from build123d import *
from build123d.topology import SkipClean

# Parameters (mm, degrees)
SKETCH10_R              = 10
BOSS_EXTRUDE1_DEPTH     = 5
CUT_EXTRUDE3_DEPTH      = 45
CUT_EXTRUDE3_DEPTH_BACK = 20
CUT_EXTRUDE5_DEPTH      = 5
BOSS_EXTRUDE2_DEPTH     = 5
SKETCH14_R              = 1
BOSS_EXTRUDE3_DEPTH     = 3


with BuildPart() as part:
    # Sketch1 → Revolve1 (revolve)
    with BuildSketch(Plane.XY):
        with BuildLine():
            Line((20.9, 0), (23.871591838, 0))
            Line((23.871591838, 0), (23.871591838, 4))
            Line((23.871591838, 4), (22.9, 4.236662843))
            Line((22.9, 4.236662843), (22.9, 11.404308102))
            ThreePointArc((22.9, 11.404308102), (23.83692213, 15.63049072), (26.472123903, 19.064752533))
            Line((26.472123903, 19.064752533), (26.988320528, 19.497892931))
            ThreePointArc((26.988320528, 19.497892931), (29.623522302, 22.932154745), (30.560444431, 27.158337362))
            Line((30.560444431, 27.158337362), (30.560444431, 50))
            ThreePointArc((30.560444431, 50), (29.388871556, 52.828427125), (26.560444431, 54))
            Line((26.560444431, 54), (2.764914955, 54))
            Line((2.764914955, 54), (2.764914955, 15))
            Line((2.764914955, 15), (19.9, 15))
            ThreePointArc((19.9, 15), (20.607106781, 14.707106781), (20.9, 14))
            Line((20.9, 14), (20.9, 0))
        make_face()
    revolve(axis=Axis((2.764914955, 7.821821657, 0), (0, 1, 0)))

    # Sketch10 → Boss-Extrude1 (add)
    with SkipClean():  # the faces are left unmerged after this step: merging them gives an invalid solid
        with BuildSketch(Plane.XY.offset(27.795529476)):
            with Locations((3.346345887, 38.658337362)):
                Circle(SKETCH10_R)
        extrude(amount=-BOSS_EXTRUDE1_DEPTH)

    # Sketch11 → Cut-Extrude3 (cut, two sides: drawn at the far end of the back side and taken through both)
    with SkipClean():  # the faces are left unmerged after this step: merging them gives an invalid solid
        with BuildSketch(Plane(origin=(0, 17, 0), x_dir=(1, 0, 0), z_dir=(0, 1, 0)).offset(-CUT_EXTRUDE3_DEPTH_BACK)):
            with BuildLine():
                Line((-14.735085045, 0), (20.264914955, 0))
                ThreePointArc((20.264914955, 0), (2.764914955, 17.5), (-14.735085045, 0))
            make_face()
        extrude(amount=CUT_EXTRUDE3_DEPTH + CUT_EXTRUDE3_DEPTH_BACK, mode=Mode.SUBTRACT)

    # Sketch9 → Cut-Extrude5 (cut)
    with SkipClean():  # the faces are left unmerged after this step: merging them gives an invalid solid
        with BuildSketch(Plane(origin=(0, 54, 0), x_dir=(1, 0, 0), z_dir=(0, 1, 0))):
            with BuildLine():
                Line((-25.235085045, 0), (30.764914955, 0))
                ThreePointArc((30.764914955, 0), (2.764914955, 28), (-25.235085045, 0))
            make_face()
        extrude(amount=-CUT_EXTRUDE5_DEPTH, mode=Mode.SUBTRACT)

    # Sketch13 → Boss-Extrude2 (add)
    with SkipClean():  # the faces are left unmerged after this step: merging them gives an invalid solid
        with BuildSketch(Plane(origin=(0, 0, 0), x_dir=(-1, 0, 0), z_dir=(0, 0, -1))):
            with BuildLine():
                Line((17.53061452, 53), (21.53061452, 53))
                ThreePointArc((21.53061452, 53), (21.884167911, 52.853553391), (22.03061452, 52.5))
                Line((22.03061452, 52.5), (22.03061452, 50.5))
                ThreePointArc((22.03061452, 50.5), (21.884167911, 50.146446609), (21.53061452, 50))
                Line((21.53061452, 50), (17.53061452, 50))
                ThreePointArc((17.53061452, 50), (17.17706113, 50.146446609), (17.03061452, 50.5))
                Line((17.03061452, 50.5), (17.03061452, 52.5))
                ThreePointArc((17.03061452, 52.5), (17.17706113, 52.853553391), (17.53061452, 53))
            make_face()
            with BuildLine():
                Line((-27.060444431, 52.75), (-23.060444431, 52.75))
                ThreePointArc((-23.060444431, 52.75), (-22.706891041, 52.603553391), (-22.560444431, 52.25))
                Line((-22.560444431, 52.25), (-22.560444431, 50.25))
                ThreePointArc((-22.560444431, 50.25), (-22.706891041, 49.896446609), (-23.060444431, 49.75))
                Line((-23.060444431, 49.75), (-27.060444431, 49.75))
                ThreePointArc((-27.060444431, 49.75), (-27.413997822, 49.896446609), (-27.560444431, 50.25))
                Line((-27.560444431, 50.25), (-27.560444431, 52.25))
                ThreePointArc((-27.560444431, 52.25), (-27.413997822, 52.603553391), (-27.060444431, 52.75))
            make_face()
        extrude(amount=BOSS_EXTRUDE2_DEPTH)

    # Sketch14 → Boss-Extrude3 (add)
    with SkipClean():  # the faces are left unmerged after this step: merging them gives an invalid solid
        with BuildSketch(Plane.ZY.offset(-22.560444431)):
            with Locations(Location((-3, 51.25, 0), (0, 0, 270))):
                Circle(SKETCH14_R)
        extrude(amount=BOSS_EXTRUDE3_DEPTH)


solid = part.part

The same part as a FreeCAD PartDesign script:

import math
import FreeCAD as App
import Part
import Sketcher
Q = App.Units.Quantity

doc = App.newDocument("Part")
params = doc.addObject("Spreadsheet::Sheet", "Params")
for row, (alias, value) in enumerate([
    ("sketch1_radius", "10 mm"),
    ("sketch1_radius2", "4 mm"),
    ("sketch1_radius3", "1 mm"),
    ("sketch1_height", "4 mm"),
    ("sketch1_height2", "39 mm"),
    ("revolution_angle", "360 deg"),
    ("sketch2_diameter", "20 mm"),
    ("pad1_length", "5 mm"),
    ("sketch3_radius", "17.5 mm"),
    ("sketch4_radius", "28 mm"),
    ("pocket2_length", "5 mm"),
    ("sketch5_radius", "0.5 mm"),
    ("sketch5_width", "4 mm"),
    ("sketch5_height", "2 mm"),
    ("pad2_length", "5 mm"),
    ("sketch6_diameter", "2 mm"),
    ("pad3_length", "3 mm"),
], start=1):
    params.set(f"A{row}", alias)
    params.set(f"B{row}", "=" + value)
    params.setAlias(f"B{row}", alias)

body = doc.addObject("PartDesign::Body", "Body")

# Sketch on XY plane
sketch1 = body.newObject("Sketcher::SketchObject", "Sketch")
sketch1.AttachmentSupport = (doc.getObject("XY_Plane"), [""])
sketch1.MapMode = "FlatFace"
sketch1.addGeometry([
    Part.LineSegment(App.Vector(20.9, 0, 0), App.Vector(23.9, 0, 0)),  # 0
    Part.LineSegment(App.Vector(23.9, 0, 0), App.Vector(23.9, 4, 0)),  # 1
    Part.LineSegment(App.Vector(23.9, 4, 0), App.Vector(22.9, 4.2, 0)),  # 2
    Part.LineSegment(App.Vector(22.9, 4.2, 0), App.Vector(22.9, 11.4, 0)),  # 3
    Part.ArcOfCircle(Part.Circle(App.Vector(32.9, 11.4, 0), App.Vector(0, 0, 1), 10), math.radians(130), math.radians(180)),  # 4
    Part.LineSegment(App.Vector(26.5, 19.1, 0), App.Vector(27, 19.5, 0)),  # 5
    Part.ArcOfCircle(Part.Circle(App.Vector(20.6, 27.2, 0), App.Vector(0, 0, 1), 10), math.radians(-50), math.radians(0)),  # 6
    Part.LineSegment(App.Vector(30.6, 27.2, 0), App.Vector(30.6, 50, 0)),  # 7
    Part.ArcOfCircle(Part.Circle(App.Vector(26.6, 50, 0), App.Vector(0, 0, 1), 4), math.radians(0), math.radians(90)),  # 8
    Part.LineSegment(App.Vector(26.6, 54, 0), App.Vector(2.8, 54, 0)),  # 9
    Part.LineSegment(App.Vector(2.8, 54, 0), App.Vector(2.8, 15, 0)),  # 10
    Part.LineSegment(App.Vector(2.8, 15, 0), App.Vector(19.9, 15, 0)),  # 11
    Part.ArcOfCircle(Part.Circle(App.Vector(19.9, 14, 0), App.Vector(0, 0, 1), 1), math.radians(0), math.radians(90)),  # 12
    Part.LineSegment(App.Vector(20.9, 14, 0), App.Vector(20.9, 0, 0)),  # 13
], False)
sketch1.addGeometry(Part.LineSegment(App.Vector(2.8, 0, 0), App.Vector(2.8, 54, 0)), True)  # axis
sketch1.addConstraint([
    Sketcher.Constraint("Coincident", 0, 2, 1, 1),
    Sketcher.Constraint("Coincident", 1, 2, 2, 1),
    Sketcher.Constraint("Coincident", 2, 2, 3, 1),
    Sketcher.Constraint("Tangent", 3, 2, 4, 2),
    Sketcher.Constraint("Tangent", 4, 1, 5, 1),
    Sketcher.Constraint("Tangent", 5, 2, 6, 1),
    Sketcher.Constraint("Tangent", 6, 2, 7, 1),
    Sketcher.Constraint("Tangent", 7, 2, 8, 1),
    Sketcher.Constraint("Tangent", 8, 2, 9, 1),
    Sketcher.Constraint("Coincident", 9, 2, 10, 1),
    Sketcher.Constraint("Coincident", 10, 2, 11, 1),
    Sketcher.Constraint("Tangent", 11, 2, 12, 2),
    Sketcher.Constraint("Tangent", 12, 1, 13, 1),
    Sketcher.Constraint("Coincident", 13, 2, 0, 1),
    Sketcher.Constraint("Horizontal", 0),
    Sketcher.Constraint("Vertical", 1),
    Sketcher.Constraint("Vertical", 3),
    Sketcher.Constraint("Vertical", 7),
    Sketcher.Constraint("Horizontal", 9),
    Sketcher.Constraint("Vertical", 10),
    Sketcher.Constraint("Horizontal", 11),
    Sketcher.Constraint("Vertical", 13),
    Sketcher.Constraint("Vertical", 14),
    Sketcher.Constraint("Coincident", 14, 2, 9, 2),
    Sketcher.Constraint("Equal", 4, 6),
    Sketcher.Constraint("PointOnObject", 0, 2, -1),
    Sketcher.Constraint("PointOnObject", 14, 1, -1),
    Sketcher.Constraint("Radius", 4, Q("10 mm")),
    Sketcher.Constraint("Radius", 8, Q("4 mm")),
    Sketcher.Constraint("Radius", 12, Q("1 mm")),
    Sketcher.Constraint("DistanceY", 1, 1, 1, 2, Q("4 mm")),
    Sketcher.Constraint("DistanceY", 10, 2, 10, 1, Q("39 mm")),
    Sketcher.Constraint("DistanceY", 13, 2, 13, 1, Q("14 mm")),
    Sketcher.Constraint("Angle", 5, Q("40 deg")),
    Sketcher.Constraint("Distance", 2, Q("1 mm")),
    Sketcher.Constraint("DistanceX", 12, 3, 4, 3, Q("13 mm")),
    Sketcher.Constraint("DistanceX", -1, 1, 4, 3, Q("32.9 mm")),
    Sketcher.Constraint("DistanceX", 0, 1, 0, 2, Q("2.971592 mm")),
    Sketcher.Constraint("DistanceX", 9, 2, 9, 1, Q("23.795529 mm")),
    Sketcher.Constraint("DistanceX", 11, 1, 11, 2, Q("17.135085 mm")),
    Sketcher.Constraint("DistanceY", 3, 1, 3, 2, Q("7.167645 mm")),
])
sketch1.setExpression("Constraints[27]", "Params.sketch1_radius")
sketch1.setExpression("Constraints[28]", "Params.sketch1_radius2")
sketch1.setExpression("Constraints[29]", "Params.sketch1_radius3")
sketch1.setExpression("Constraints[30]", "Params.sketch1_height")
sketch1.setExpression("Constraints[31]", "Params.sketch1_height2")
revolution = body.newObject("PartDesign::Revolution", "Revolution")
revolution.Profile = sketch1
revolution.ReferenceAxis = (sketch1, ["Axis0"])
revolution.setExpression("Angle", "Params.revolution_angle")

# Sketch on XY plane
sketch2 = body.newObject("Sketcher::SketchObject", "Sketch001")
sketch2.AttachmentSupport = (doc.getObject("XY_Plane"), [""])
sketch2.MapMode = "FlatFace"
sketch2.AttachmentOffset = App.Placement(App.Vector(0, 0, 27.795529), App.Rotation())
sketch2.addGeometry(Part.Circle(App.Vector(3, 39, 0), App.Vector(0, 0, 1), 10), False)
sketch2.addConstraint([
    Sketcher.Constraint("Diameter", 0, Q("20 mm")),
    Sketcher.Constraint("DistanceX", -1, 1, 0, 3, Q("3.346346 mm")),
    Sketcher.Constraint("DistanceY", -1, 1, 0, 3, Q("38.658337 mm")),
])
sketch2.setExpression("Constraints[0]", "Params.sketch2_diameter")
pad1 = body.newObject("PartDesign::Pad", "Pad")
pad1.Profile = sketch2
pad1.setExpression("Length", "Params.pad1_length")
pad1.Reversed = True

# Sketch on XZ plane
sketch3 = body.newObject("Sketcher::SketchObject", "Sketch002")
sketch3.AttachmentSupport = (doc.getObject("XZ_Plane"), [""])
sketch3.MapMode = "FlatFace"
sketch3.AttachmentOffset = App.Placement(App.Vector(0, 0, -17), App.Rotation())
sketch3.addGeometry([
    Part.LineSegment(App.Vector(-15, 0, 0), App.Vector(20, 0, 0)),
    Part.ArcOfCircle(Part.Circle(App.Vector(3, 0, 0), App.Vector(0, 0, 1), 18), math.radians(180), math.radians(360)),
], False)
sketch3.addConstraint([
    Sketcher.Constraint("Coincident", 0, 1, 1, 1),
    Sketcher.Constraint("Coincident", 1, 2, 0, 2),
    Sketcher.Constraint("Horizontal", 0),
    Sketcher.Constraint("PointOnObject", 1, 3, -1),
    Sketcher.Constraint("PointOnObject", 0, 1, -1),
    Sketcher.Constraint("Radius", 1, Q("17.5 mm")),
    Sketcher.Constraint("DistanceX", -1, 1, 1, 3, Q("2.764915 mm")),
])
sketch3.setExpression("Constraints[5]", "Params.sketch3_radius")
pocket1 = body.newObject("PartDesign::Pocket", "Pocket")
pocket1.Profile = sketch3
pocket1.Type = "ThroughAll"
pocket1.Midplane = True

# Sketch on XZ plane
sketch4 = body.newObject("Sketcher::SketchObject", "Sketch003")
sketch4.AttachmentSupport = (doc.getObject("XZ_Plane"), [""])
sketch4.MapMode = "FlatFace"
sketch4.AttachmentOffset = App.Placement(App.Vector(0, 0, -54), App.Rotation())
sketch4.addGeometry([
    Part.LineSegment(App.Vector(-25, 0, 0), App.Vector(31, 0, 0)),
    Part.ArcOfCircle(Part.Circle(App.Vector(3, 0, 0), App.Vector(0, 0, 1), 28), math.radians(180), math.radians(360)),
], False)
sketch4.addConstraint([
    Sketcher.Constraint("Coincident", 0, 1, 1, 1),
    Sketcher.Constraint("Coincident", 1, 2, 0, 2),
    Sketcher.Constraint("Horizontal", 0),
    Sketcher.Constraint("PointOnObject", 1, 3, -1),
    Sketcher.Constraint("PointOnObject", 0, 1, -1),
    Sketcher.Constraint("Radius", 1, Q("28 mm")),
    Sketcher.Constraint("DistanceX", -1, 1, 1, 3, Q("2.764915 mm")),
])
sketch4.setExpression("Constraints[5]", "Params.sketch4_radius")
pocket2 = body.newObject("PartDesign::Pocket", "Pocket001")
pocket2.Profile = sketch4
pocket2.setExpression("Length", "Params.pocket2_length")
pocket2.Reversed = True

# Sketch on XY plane
sketch5 = body.newObject("Sketcher::SketchObject", "Sketch004")
sketch5.AttachmentSupport = (doc.getObject("XY_Plane"), [""])
sketch5.MapMode = "FlatFace"
sketch5.addGeometry([
    Part.LineSegment(App.Vector(-21.53, 53, 0), App.Vector(-17.53, 53, 0)),  # 0
    Part.ArcOfCircle(Part.Circle(App.Vector(-17.53, 52.5, 0), App.Vector(0, 0, 1), 0.5), math.radians(0), math.radians(90)),  # 1
    Part.LineSegment(App.Vector(-17.03, 52.5, 0), App.Vector(-17.03, 50.5, 0)),  # 2
    Part.ArcOfCircle(Part.Circle(App.Vector(-17.53, 50.5, 0), App.Vector(0, 0, 1), 0.5), math.radians(-90), math.radians(0)),  # 3
    Part.LineSegment(App.Vector(-17.53, 50, 0), App.Vector(-21.53, 50, 0)),  # 4
    Part.ArcOfCircle(Part.Circle(App.Vector(-21.53, 50.5, 0), App.Vector(0, 0, 1), 0.5), math.radians(180), math.radians(270)),  # 5
    Part.LineSegment(App.Vector(-22.03, 50.5, 0), App.Vector(-22.03, 52.5, 0)),  # 6
    Part.ArcOfCircle(Part.Circle(App.Vector(-21.53, 52.5, 0), App.Vector(0, 0, 1), 0.5), math.radians(90), math.radians(180)),  # 7
    Part.LineSegment(App.Vector(23.06, 52.75, 0), App.Vector(27.06, 52.75, 0)),  # 8
    Part.ArcOfCircle(Part.Circle(App.Vector(27.06, 52.25, 0), App.Vector(0, 0, 1), 0.5), math.radians(0), math.radians(90)),  # 9
    Part.LineSegment(App.Vector(27.56, 52.25, 0), App.Vector(27.56, 50.25, 0)),  # 10
    Part.ArcOfCircle(Part.Circle(App.Vector(27.06, 50.25, 0), App.Vector(0, 0, 1), 0.5), math.radians(-90), math.radians(0)),  # 11
    Part.LineSegment(App.Vector(27.06, 49.75, 0), App.Vector(23.06, 49.75, 0)),  # 12
    Part.ArcOfCircle(Part.Circle(App.Vector(23.06, 50.25, 0), App.Vector(0, 0, 1), 0.5), math.radians(180), math.radians(270)),  # 13
    Part.LineSegment(App.Vector(22.56, 50.25, 0), App.Vector(22.56, 52.25, 0)),  # 14
    Part.ArcOfCircle(Part.Circle(App.Vector(23.06, 52.25, 0), App.Vector(0, 0, 1), 0.5), math.radians(90), math.radians(180)),  # 15
], False)
sketch5.addConstraint([
    Sketcher.Constraint("Tangent", 0, 2, 1, 2),
    Sketcher.Constraint("Tangent", 1, 1, 2, 1),
    Sketcher.Constraint("Tangent", 2, 2, 3, 2),
    Sketcher.Constraint("Tangent", 3, 1, 4, 1),
    Sketcher.Constraint("Tangent", 4, 2, 5, 2),
    Sketcher.Constraint("Tangent", 5, 1, 6, 1),
    Sketcher.Constraint("Tangent", 6, 2, 7, 2),
    Sketcher.Constraint("Tangent", 7, 1, 0, 1),
    Sketcher.Constraint("Tangent", 8, 2, 9, 2),
    Sketcher.Constraint("Tangent", 9, 1, 10, 1),
    Sketcher.Constraint("Tangent", 10, 2, 11, 2),
    Sketcher.Constraint("Tangent", 11, 1, 12, 1),
    Sketcher.Constraint("Tangent", 12, 2, 13, 2),
    Sketcher.Constraint("Tangent", 13, 1, 14, 1),
    Sketcher.Constraint("Tangent", 14, 2, 15, 2),
    Sketcher.Constraint("Tangent", 15, 1, 8, 1),
    Sketcher.Constraint("Horizontal", 0),
    Sketcher.Constraint("Vertical", 2),
    Sketcher.Constraint("Horizontal", 4),
    Sketcher.Constraint("Vertical", 6),
    Sketcher.Constraint("Horizontal", 8),
    Sketcher.Constraint("Vertical", 10),
    Sketcher.Constraint("Horizontal", 12),
    Sketcher.Constraint("Vertical", 14),
    Sketcher.Constraint("Equal", 1, 3),
    Sketcher.Constraint("Equal", 3, 5),
    Sketcher.Constraint("Equal", 5, 7),
    Sketcher.Constraint("Equal", 7, 9),
    Sketcher.Constraint("Equal", 9, 11),
    Sketcher.Constraint("Equal", 11, 13),
    Sketcher.Constraint("Equal", 13, 15),
    Sketcher.Constraint("Equal", 4, 8),
    Sketcher.Constraint("Equal", 6, 10),
    Sketcher.Constraint("Radius", 1, Q("0.5 mm")),
    Sketcher.Constraint("DistanceX", 0, 1, 0, 2, Q("4 mm")),
    Sketcher.Constraint("DistanceY", 2, 2, 2, 1, Q("2 mm")),
    Sketcher.Constraint("DistanceY", -1, 1, 0, 2, Q("53 mm")),
    Sketcher.Constraint("DistanceY", -1, 1, 9, 3, Q("52.25 mm")),
    Sketcher.Constraint("DistanceX", 1, 3, 9, 3, Q("44.591059 mm")),
    Sketcher.Constraint("DistanceX", 1, 3, -1, 1, Q("17.530615 mm")),
])
sketch5.setExpression("Constraints[33]", "Params.sketch5_radius")
sketch5.setExpression("Constraints[34]", "Params.sketch5_width")
sketch5.setExpression("Constraints[35]", "Params.sketch5_height")
pad2 = body.newObject("PartDesign::Pad", "Pad001")
pad2.Profile = sketch5
pad2.setExpression("Length", "Params.pad2_length")
pad2.Reversed = True

# Sketch on YZ plane
sketch6 = body.newObject("Sketcher::SketchObject", "Sketch005")
sketch6.AttachmentSupport = (doc.getObject("YZ_Plane"), [""])
sketch6.MapMode = "FlatFace"
sketch6.AttachmentOffset = App.Placement(App.Vector(0, 0, 22.560444), App.Rotation())
sketch6.addGeometry(Part.Circle(App.Vector(51.2, -3, 0), App.Vector(0, 0, 1), 1), False)
sketch6.addConstraint([
    Sketcher.Constraint("Diameter", 0, Q("2 mm")),
    Sketcher.Constraint("DistanceY", 0, 3, -1, 1, Q("3 mm")),
    Sketcher.Constraint("DistanceX", -1, 1, 0, 3, Q("51.25 mm")),
])
sketch6.setExpression("Constraints[0]", "Params.sketch6_diameter")
pad3 = body.newObject("PartDesign::Pad", "Pad002")
pad3.Profile = sketch6
pad3.setExpression("Length", "Params.pad3_length")
pad3.Reversed = True

doc.recompute()
